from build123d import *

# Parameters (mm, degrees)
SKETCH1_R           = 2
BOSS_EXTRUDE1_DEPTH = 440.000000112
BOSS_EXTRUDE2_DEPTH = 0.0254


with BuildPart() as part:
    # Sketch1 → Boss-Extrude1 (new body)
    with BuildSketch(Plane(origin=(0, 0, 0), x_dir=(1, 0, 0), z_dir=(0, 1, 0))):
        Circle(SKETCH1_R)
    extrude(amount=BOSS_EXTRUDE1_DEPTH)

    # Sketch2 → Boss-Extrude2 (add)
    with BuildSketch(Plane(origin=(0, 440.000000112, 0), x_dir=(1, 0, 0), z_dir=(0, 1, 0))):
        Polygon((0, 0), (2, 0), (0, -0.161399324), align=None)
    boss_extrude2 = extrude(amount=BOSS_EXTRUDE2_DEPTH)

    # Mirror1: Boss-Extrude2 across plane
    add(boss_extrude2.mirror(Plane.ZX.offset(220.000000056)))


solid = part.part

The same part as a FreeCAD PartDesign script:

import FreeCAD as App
import Part
import Sketcher

V = App.Vector
Q = App.Units.Quantity

doc = App.newDocument("Part")
body = doc.addObject("PartDesign::Body", "Body")

# Sketch on XZ plane
sketch1 = doc.addObject("Sketcher::SketchObject", "Sketch")
body.addObject(sketch1)
sketch1.AttachmentSupport = (doc.XZ_Plane, [""])
sketch1.MapMode = "FlatFace"
sketch1.addGeometry(Part.Circle(V(0, 0, 0), V(0, 0, 1), 2), False)
sketch1.addConstraint(Sketcher.Constraint("Coincident", 0, 3, -1, 1))
sketch1.addConstraint(Sketcher.Constraint("Diameter", 0, Q("4 mm")))
pad1 = doc.addObject("PartDesign::Pad", "Pad")
body.addObject(pad1)
pad1.Profile = sketch1
pad1.Length = 440
pad1.Reversed = True

# Sketch on XZ plane
sketch2 = doc.addObject("Sketcher::SketchObject", "Sketch001")
body.addObject(sketch2)
sketch2.AttachmentSupport = (doc.XZ_Plane, [""])
sketch2.MapMode = "FlatFace"
sketch2.AttachmentOffset = App.Placement(V(0, 0, -440), App.Rotation())
sketch2.addGeometry(Part.LineSegment(V(2, 0, 0), V(0, 0, 0)), False)
sketch2.addGeometry(Part.LineSegment(V(0, 0, 0), V(0, 0.161399, 0)), False)
sketch2.addGeometry(Part.LineSegment(V(0, 0.161399, 0), V(2, 0, 0)), False)
sketch2.addConstraint(Sketcher.Constraint("Coincident", 0, 2, 1, 1))
sketch2.addConstraint(Sketcher.Constraint("Coincident", 1, 2, 2, 1))
sketch2.addConstraint(Sketcher.Constraint("Coincident", 2, 2, 0, 1))
sketch2.addConstraint(Sketcher.Constraint("Horizontal", 0))
sketch2.addConstraint(Sketcher.Constraint("Vertical", 1))
sketch2.addConstraint(Sketcher.Constraint("Coincident", 0, 2, -1, 1))
sketch2.addConstraint(Sketcher.Constraint("DistanceX", 0, 2, 0, 1, Q("2 mm")))
sketch2.addConstraint(Sketcher.Constraint("DistanceY", 1, 1, 1, 2, Q("0.161399 mm")))
pad2 = doc.addObject("PartDesign::Pad", "Pad001")
body.addObject(pad2)
pad2.Profile = sketch2
pad2.Length = 0.0254
pad2.Reversed = True
doc.recompute()

datumplane = doc.addObject("PartDesign::Plane", "DatumPlane")
body.addObject(datumplane)
datumplane.AttachmentSupport = (doc.XZ_Plane, [""])
datumplane.MapMode = "FlatFace"
datumplane.AttachmentOffset = App.Placement(V(0, 0, -220), App.Rotation())
mirrored = doc.addObject("PartDesign::Mirrored", "Mirrored")
body.addObject(mirrored)
mirrored.Originals = [pad2]
mirrored.MirrorPlane = (datumplane, [""])
body.Tip = mirrored

doc.recompute()
